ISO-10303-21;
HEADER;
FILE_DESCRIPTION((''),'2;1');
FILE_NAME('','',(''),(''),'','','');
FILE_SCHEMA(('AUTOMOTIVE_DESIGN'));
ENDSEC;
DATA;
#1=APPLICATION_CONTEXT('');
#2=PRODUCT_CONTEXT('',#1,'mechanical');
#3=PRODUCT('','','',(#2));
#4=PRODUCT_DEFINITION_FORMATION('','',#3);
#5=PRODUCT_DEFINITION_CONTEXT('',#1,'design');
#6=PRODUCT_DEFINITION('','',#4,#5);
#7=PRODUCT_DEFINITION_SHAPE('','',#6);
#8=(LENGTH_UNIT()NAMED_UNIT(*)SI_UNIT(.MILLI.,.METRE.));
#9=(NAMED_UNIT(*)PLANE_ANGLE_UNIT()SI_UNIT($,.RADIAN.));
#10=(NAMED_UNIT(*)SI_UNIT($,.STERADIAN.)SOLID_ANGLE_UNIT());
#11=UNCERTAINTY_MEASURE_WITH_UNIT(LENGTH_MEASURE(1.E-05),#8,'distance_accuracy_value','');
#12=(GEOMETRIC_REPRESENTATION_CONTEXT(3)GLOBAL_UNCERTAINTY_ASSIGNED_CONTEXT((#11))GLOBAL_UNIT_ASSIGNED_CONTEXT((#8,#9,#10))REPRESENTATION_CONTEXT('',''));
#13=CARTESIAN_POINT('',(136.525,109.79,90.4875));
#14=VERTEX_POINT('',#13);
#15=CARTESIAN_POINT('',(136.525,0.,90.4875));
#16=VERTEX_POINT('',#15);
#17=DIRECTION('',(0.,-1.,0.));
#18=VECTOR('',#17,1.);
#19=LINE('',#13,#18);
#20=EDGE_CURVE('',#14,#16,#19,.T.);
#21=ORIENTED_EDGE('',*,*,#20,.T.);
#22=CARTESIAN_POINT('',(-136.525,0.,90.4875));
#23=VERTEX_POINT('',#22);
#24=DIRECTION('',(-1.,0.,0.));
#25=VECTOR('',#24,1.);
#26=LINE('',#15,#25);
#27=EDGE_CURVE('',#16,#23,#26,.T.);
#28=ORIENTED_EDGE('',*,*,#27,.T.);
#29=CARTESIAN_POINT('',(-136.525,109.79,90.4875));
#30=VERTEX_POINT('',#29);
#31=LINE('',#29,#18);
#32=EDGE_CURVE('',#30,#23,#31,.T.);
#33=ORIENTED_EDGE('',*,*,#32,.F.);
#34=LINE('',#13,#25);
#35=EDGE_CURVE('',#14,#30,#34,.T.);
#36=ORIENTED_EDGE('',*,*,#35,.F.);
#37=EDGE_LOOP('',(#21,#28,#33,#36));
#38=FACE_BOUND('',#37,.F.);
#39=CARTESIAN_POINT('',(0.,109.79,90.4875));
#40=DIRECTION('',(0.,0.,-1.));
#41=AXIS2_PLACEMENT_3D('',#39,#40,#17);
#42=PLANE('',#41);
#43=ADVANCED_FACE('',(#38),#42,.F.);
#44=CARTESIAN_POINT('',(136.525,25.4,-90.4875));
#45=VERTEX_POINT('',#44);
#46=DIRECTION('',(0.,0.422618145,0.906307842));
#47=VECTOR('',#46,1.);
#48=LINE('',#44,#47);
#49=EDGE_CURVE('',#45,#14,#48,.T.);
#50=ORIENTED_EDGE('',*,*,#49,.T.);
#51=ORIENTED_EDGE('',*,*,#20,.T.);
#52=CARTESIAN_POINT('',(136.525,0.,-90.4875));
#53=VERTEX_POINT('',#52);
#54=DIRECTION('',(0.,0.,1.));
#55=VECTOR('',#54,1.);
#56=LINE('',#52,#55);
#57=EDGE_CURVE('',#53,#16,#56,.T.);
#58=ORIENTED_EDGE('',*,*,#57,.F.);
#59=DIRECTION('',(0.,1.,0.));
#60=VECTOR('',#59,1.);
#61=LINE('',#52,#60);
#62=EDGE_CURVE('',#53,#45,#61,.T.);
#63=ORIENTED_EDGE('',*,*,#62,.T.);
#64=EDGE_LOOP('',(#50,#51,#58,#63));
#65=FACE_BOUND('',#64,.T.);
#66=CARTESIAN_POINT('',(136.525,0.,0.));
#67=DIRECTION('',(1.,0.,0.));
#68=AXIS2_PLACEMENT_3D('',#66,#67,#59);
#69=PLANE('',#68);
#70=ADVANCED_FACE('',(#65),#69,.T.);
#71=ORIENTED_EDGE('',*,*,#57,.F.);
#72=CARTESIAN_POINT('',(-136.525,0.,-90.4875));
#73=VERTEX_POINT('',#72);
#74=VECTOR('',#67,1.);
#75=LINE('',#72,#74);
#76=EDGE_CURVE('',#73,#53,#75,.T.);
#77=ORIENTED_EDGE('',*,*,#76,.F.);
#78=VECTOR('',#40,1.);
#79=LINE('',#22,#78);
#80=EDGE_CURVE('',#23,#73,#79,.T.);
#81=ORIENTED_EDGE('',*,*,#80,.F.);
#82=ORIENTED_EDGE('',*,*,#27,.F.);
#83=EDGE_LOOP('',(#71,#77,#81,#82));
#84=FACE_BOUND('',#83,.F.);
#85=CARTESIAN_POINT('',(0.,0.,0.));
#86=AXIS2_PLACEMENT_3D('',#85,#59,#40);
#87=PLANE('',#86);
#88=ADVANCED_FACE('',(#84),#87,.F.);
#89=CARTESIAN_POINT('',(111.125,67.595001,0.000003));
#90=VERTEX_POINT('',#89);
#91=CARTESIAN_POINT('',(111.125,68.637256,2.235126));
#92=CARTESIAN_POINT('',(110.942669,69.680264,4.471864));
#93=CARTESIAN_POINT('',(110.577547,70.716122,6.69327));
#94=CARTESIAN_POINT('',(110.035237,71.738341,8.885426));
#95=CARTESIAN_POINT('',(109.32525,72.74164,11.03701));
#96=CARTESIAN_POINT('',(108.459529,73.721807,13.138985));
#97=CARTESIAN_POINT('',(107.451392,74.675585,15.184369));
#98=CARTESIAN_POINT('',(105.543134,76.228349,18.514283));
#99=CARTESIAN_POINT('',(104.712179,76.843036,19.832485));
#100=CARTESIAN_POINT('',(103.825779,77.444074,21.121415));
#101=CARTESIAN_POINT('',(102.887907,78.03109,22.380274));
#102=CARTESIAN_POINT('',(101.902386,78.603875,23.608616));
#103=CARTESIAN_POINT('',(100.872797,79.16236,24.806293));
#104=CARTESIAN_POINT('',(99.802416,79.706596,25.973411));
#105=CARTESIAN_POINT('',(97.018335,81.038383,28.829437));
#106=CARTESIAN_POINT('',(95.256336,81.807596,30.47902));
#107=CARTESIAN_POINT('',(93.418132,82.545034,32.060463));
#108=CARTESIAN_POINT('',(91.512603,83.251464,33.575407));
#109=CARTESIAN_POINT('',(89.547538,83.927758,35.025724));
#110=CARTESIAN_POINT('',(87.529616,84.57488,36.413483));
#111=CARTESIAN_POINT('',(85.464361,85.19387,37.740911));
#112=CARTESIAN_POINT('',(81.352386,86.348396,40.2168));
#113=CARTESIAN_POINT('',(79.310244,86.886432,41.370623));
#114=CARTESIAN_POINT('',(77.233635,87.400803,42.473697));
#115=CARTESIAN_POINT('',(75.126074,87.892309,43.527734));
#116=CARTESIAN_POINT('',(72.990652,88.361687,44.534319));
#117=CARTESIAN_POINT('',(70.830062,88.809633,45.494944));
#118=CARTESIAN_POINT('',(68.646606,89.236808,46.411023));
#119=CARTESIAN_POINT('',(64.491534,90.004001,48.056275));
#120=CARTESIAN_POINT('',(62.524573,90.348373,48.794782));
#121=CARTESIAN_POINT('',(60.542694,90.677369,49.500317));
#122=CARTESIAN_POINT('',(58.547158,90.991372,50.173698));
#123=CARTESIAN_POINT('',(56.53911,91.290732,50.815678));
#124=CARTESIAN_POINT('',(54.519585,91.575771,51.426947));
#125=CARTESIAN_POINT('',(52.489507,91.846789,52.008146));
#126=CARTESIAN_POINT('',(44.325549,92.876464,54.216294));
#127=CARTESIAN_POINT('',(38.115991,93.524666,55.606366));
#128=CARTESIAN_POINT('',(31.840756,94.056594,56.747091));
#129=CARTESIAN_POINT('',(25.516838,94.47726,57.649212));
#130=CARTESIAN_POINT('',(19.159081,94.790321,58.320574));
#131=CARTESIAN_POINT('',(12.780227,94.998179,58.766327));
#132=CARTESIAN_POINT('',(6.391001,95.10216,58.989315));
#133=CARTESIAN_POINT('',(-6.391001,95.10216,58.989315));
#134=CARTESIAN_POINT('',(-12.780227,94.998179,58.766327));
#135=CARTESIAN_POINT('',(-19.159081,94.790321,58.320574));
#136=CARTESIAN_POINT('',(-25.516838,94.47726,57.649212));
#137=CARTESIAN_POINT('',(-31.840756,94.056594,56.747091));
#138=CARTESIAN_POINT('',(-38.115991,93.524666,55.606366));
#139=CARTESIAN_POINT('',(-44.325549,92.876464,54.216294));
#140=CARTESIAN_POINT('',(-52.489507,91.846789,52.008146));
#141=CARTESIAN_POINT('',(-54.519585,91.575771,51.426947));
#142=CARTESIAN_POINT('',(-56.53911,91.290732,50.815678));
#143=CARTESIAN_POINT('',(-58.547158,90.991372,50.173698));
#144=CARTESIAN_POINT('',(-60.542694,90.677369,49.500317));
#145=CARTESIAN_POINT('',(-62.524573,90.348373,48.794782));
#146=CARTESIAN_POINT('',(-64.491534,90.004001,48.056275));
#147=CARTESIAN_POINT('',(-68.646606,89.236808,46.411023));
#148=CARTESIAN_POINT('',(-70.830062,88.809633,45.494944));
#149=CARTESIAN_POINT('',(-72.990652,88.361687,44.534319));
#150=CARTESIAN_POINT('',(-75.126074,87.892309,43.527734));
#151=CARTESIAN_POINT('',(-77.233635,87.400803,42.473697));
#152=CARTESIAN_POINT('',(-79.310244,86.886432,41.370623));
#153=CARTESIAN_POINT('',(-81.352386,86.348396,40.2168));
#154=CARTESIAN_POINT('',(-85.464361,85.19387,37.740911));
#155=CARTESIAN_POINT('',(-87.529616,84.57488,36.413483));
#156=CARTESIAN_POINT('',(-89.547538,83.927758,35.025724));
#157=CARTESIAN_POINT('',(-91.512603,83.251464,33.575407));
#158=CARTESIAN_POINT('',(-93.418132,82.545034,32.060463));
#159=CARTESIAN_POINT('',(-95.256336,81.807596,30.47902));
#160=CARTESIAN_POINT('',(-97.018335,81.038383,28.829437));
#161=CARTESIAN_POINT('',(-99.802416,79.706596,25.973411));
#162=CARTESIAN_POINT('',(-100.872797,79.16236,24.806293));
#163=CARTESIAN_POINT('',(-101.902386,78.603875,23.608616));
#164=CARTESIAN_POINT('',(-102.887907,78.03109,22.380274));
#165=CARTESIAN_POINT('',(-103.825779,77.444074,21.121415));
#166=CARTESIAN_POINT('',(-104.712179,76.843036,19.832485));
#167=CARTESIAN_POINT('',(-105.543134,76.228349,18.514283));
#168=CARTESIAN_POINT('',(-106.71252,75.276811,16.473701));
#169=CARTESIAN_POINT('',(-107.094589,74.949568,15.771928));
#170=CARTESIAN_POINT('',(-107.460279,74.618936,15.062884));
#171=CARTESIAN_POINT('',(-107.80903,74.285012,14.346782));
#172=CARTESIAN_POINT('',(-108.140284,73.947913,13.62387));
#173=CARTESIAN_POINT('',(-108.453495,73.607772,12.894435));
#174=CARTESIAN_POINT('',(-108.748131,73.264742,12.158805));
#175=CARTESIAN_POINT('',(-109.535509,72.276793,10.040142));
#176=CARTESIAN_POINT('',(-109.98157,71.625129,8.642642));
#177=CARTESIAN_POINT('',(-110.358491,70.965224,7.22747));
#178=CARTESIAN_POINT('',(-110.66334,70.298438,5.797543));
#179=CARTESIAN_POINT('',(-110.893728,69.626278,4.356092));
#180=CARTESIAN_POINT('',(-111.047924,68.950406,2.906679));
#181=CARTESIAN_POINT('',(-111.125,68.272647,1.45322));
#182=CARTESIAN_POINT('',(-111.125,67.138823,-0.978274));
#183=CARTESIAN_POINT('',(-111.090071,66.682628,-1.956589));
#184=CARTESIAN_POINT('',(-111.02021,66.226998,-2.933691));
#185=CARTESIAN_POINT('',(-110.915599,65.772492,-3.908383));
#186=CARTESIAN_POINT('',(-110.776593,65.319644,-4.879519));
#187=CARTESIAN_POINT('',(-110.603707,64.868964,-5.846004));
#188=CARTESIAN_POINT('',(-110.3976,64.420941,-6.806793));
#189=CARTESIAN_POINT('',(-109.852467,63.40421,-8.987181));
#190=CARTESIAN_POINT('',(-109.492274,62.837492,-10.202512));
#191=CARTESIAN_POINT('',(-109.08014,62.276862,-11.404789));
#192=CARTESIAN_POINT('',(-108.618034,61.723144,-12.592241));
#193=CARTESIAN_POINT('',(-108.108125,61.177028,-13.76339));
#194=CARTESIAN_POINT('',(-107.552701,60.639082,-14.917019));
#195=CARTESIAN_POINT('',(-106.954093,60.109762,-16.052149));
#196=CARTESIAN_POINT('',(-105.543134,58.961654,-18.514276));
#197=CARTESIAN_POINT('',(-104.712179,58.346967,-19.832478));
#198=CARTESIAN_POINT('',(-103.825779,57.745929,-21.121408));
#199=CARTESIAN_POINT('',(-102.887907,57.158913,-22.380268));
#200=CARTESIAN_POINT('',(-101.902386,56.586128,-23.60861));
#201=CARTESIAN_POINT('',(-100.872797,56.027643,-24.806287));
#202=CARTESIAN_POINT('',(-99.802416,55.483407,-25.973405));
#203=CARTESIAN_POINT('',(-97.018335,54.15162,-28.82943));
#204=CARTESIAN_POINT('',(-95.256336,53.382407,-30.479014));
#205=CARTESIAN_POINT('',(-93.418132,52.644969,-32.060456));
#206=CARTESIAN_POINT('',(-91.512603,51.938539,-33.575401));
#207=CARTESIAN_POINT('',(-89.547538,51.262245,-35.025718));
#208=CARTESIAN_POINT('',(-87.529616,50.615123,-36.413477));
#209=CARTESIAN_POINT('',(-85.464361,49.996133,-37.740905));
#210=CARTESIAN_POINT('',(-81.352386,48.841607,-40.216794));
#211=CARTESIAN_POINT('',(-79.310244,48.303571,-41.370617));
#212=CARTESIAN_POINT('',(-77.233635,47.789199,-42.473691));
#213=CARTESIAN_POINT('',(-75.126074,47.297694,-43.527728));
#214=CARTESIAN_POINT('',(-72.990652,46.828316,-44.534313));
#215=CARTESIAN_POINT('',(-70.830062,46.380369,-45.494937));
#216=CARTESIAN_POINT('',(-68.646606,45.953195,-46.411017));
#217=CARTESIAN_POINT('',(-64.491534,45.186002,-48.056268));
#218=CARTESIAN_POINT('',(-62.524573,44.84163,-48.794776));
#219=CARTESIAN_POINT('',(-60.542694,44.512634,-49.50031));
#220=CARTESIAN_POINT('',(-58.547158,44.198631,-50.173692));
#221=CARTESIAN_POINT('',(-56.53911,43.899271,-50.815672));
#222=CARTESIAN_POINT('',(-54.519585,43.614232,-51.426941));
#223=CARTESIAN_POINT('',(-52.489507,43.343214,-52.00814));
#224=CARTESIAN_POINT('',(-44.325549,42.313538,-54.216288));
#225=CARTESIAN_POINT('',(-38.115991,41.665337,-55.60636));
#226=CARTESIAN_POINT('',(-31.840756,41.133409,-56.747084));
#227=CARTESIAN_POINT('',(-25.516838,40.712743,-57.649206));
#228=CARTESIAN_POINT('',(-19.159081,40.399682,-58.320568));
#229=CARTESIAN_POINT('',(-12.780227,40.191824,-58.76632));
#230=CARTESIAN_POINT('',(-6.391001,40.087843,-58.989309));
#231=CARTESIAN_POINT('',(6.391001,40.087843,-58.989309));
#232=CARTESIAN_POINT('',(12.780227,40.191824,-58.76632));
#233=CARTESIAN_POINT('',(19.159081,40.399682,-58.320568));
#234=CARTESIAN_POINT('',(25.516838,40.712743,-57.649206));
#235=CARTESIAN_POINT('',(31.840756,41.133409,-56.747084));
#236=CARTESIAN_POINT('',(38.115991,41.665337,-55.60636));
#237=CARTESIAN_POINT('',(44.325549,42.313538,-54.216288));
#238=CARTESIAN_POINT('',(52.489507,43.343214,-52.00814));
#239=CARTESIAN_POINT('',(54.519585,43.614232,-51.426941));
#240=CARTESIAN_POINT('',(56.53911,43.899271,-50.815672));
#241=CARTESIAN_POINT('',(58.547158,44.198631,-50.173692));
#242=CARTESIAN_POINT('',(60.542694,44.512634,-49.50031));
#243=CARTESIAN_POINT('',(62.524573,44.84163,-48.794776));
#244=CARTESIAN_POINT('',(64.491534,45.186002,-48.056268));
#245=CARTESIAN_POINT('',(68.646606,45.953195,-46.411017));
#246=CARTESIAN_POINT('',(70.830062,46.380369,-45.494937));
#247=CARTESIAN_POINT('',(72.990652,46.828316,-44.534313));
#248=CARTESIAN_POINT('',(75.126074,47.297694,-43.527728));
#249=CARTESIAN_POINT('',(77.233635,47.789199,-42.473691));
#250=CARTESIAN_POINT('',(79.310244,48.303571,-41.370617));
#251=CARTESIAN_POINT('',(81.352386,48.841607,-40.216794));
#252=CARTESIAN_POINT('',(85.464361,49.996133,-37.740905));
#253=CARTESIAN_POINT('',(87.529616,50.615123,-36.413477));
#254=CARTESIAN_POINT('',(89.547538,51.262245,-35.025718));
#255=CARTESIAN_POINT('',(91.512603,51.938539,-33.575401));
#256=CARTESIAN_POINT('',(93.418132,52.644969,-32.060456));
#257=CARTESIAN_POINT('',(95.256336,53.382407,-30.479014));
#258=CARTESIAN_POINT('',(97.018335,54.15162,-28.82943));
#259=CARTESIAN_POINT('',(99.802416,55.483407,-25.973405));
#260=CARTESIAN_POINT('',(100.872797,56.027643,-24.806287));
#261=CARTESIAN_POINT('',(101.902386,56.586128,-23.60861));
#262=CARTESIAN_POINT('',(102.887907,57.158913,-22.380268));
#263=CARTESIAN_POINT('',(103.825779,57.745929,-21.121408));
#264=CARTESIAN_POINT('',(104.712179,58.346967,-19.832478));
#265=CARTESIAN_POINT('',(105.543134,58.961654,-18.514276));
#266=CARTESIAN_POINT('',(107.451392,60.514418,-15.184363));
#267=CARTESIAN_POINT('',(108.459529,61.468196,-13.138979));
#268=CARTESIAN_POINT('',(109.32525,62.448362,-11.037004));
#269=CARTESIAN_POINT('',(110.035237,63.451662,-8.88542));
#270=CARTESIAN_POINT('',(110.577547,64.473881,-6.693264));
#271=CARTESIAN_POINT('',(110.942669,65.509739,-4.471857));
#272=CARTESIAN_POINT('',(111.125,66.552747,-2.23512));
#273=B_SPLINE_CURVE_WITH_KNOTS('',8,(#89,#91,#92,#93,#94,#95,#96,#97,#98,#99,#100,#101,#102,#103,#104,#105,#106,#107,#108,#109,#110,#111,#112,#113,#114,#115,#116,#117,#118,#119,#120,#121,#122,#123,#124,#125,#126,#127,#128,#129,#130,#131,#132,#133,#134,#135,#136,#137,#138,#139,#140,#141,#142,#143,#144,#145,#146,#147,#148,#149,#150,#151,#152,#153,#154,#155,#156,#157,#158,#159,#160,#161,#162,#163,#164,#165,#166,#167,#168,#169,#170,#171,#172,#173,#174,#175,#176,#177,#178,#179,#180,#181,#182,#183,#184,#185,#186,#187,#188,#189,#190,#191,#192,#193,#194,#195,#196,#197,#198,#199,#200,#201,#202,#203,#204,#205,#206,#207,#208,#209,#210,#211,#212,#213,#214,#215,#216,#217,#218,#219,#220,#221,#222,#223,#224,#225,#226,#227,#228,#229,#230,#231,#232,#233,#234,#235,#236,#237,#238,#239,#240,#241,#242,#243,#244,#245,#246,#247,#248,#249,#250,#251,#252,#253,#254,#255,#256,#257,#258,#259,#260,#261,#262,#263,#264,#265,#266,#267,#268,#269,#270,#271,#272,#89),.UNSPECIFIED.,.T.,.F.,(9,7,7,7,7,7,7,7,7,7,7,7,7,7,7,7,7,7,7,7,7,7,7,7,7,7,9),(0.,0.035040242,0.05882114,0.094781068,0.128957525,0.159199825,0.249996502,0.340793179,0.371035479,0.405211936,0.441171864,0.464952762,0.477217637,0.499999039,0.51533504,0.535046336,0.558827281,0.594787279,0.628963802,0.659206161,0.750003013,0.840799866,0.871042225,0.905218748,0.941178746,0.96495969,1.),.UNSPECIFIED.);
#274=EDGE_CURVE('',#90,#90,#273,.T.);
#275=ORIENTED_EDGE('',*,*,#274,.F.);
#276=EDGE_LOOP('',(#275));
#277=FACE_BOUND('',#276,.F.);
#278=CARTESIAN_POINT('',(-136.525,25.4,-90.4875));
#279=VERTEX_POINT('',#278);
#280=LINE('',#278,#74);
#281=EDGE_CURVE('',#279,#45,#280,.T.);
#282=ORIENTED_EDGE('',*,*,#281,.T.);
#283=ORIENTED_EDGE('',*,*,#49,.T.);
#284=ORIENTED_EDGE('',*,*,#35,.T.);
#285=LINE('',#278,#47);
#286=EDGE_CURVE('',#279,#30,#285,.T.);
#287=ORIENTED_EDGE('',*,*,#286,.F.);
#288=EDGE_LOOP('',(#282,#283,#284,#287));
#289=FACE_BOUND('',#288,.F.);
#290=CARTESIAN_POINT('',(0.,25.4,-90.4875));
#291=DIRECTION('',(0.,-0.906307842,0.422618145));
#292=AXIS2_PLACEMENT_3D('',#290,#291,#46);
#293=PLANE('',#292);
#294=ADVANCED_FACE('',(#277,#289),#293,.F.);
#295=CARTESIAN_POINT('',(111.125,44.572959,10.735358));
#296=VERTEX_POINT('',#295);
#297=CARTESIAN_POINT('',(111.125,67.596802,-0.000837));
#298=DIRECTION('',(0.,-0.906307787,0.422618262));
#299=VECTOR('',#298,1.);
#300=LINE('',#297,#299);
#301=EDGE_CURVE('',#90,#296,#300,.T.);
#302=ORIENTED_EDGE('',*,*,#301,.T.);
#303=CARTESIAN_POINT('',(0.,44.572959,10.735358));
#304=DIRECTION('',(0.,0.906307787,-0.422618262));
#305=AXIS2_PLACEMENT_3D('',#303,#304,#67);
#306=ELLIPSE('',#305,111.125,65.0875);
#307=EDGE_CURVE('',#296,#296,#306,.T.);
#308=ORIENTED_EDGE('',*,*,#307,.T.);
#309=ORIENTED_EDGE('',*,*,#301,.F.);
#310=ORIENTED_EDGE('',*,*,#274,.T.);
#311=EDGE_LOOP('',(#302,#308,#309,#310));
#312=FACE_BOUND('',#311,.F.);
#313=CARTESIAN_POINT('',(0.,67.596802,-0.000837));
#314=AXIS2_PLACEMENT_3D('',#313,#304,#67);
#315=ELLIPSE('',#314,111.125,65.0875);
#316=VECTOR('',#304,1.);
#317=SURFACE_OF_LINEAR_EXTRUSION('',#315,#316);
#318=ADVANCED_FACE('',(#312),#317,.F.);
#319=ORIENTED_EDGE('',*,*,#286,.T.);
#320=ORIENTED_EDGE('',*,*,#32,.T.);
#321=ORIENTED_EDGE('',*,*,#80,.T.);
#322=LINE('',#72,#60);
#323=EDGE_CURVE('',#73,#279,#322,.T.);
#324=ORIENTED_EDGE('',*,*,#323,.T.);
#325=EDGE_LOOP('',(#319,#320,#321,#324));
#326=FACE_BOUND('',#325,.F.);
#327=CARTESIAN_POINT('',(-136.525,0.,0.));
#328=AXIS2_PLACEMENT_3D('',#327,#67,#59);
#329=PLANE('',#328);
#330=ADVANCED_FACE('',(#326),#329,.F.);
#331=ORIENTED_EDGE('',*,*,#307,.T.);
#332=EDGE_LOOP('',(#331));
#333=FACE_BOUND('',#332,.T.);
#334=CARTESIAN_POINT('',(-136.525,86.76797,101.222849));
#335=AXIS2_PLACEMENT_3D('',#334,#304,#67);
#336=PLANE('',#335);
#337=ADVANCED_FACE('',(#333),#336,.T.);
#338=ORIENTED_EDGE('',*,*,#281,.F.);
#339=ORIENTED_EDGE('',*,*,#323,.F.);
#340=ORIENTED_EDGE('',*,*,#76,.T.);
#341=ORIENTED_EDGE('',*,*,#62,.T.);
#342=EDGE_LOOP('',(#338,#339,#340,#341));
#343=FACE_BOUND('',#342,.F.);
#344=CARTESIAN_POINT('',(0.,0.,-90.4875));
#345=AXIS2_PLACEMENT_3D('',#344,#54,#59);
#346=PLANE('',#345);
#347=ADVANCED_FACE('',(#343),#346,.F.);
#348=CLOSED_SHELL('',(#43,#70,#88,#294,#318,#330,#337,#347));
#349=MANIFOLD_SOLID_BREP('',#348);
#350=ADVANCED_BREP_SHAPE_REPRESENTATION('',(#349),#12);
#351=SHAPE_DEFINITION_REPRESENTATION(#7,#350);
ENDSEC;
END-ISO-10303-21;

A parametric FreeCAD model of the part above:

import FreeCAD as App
import Part
import Sketcher
from FreeCAD import Vector
Q = App.Units.Quantity

doc = App.newDocument("Part")
body = doc.addObject("PartDesign::Body", "Body")

sketch1 = body.newObject("Sketcher::SketchObject", "Sketch")
sketch1.AttachmentSupport = (doc.getObject("YZ_Plane"), [""])
sketch1.MapMode = "FlatFace"
sketch1.addGeometry(Part.LineSegment(Vector(0, 90, 0), Vector(0, -90, 0)), False)
sketch1.addGeometry(Part.LineSegment(Vector(0, -90, 0), Vector(25, -90, 0)), False)
sketch1.addGeometry(Part.LineSegment(Vector(25, -90, 0), Vector(110, 90, 0)), False)
sketch1.addGeometry(Part.LineSegment(Vector(110, 90, 0), Vector(0, 90, 0)), False)
sketch1.addConstraint(Sketcher.Constraint("Coincident", 0, 2, 1, 1))
sketch1.addConstraint(Sketcher.Constraint("Coincident", 1, 2, 2, 1))
sketch1.addConstraint(Sketcher.Constraint("Coincident", 2, 2, 3, 1))
sketch1.addConstraint(Sketcher.Constraint("Coincident", 3, 2, 0, 1))
sketch1.addConstraint(Sketcher.Constraint("Vertical", 0))
sketch1.addConstraint(Sketcher.Constraint("Horizontal", 1))
sketch1.addConstraint(Sketcher.Constraint("Horizontal", 3))
sketch1.addConstraint(Sketcher.Constraint("Symmetric", 0, 2, 3, 2, -1, 1))
sketch1.addConstraint(Sketcher.Constraint("DistanceX", 1, 1, 1, 2, Q("1 in")))
sketch1.addConstraint(Sketcher.Constraint("DistanceY", 0, 2, 0, 1, Q("7.125 in")))
sketch1.addConstraint(Sketcher.Constraint("Angle", 2, Q("65 deg")))
pad1 = body.newObject("PartDesign::Pad", "Pad")
pad1.Profile = sketch1
pad1.Length = Q("10.75 in")
pad1.Midplane = True

sketch2 = body.newObject("Sketcher::SketchObject", "Sketch001")
sketch2.Placement = App.Placement(Vector(-136.525, 109.79, 90.4875), App.Rotation(Vector(1, 0, 0), Vector(0, -0.422618262, -0.906307787), Vector(0, 0.906307787, -0.422618262), "ZXY"))
sketch2.addGeometry(Part.Ellipse(Vector(247.65, 99.8419, 0), Vector(136.525, 164.9294, 0), Vector(136.525, 99.8419, 0)), False)
sketch2.addConstraint(Sketcher.Constraint("Block", 0))
pocket1 = body.newObject("PartDesign::Pocket", "Pocket")
pocket1.Profile = sketch2
pocket1.Length = Q("1 in")

doc.recompute()
